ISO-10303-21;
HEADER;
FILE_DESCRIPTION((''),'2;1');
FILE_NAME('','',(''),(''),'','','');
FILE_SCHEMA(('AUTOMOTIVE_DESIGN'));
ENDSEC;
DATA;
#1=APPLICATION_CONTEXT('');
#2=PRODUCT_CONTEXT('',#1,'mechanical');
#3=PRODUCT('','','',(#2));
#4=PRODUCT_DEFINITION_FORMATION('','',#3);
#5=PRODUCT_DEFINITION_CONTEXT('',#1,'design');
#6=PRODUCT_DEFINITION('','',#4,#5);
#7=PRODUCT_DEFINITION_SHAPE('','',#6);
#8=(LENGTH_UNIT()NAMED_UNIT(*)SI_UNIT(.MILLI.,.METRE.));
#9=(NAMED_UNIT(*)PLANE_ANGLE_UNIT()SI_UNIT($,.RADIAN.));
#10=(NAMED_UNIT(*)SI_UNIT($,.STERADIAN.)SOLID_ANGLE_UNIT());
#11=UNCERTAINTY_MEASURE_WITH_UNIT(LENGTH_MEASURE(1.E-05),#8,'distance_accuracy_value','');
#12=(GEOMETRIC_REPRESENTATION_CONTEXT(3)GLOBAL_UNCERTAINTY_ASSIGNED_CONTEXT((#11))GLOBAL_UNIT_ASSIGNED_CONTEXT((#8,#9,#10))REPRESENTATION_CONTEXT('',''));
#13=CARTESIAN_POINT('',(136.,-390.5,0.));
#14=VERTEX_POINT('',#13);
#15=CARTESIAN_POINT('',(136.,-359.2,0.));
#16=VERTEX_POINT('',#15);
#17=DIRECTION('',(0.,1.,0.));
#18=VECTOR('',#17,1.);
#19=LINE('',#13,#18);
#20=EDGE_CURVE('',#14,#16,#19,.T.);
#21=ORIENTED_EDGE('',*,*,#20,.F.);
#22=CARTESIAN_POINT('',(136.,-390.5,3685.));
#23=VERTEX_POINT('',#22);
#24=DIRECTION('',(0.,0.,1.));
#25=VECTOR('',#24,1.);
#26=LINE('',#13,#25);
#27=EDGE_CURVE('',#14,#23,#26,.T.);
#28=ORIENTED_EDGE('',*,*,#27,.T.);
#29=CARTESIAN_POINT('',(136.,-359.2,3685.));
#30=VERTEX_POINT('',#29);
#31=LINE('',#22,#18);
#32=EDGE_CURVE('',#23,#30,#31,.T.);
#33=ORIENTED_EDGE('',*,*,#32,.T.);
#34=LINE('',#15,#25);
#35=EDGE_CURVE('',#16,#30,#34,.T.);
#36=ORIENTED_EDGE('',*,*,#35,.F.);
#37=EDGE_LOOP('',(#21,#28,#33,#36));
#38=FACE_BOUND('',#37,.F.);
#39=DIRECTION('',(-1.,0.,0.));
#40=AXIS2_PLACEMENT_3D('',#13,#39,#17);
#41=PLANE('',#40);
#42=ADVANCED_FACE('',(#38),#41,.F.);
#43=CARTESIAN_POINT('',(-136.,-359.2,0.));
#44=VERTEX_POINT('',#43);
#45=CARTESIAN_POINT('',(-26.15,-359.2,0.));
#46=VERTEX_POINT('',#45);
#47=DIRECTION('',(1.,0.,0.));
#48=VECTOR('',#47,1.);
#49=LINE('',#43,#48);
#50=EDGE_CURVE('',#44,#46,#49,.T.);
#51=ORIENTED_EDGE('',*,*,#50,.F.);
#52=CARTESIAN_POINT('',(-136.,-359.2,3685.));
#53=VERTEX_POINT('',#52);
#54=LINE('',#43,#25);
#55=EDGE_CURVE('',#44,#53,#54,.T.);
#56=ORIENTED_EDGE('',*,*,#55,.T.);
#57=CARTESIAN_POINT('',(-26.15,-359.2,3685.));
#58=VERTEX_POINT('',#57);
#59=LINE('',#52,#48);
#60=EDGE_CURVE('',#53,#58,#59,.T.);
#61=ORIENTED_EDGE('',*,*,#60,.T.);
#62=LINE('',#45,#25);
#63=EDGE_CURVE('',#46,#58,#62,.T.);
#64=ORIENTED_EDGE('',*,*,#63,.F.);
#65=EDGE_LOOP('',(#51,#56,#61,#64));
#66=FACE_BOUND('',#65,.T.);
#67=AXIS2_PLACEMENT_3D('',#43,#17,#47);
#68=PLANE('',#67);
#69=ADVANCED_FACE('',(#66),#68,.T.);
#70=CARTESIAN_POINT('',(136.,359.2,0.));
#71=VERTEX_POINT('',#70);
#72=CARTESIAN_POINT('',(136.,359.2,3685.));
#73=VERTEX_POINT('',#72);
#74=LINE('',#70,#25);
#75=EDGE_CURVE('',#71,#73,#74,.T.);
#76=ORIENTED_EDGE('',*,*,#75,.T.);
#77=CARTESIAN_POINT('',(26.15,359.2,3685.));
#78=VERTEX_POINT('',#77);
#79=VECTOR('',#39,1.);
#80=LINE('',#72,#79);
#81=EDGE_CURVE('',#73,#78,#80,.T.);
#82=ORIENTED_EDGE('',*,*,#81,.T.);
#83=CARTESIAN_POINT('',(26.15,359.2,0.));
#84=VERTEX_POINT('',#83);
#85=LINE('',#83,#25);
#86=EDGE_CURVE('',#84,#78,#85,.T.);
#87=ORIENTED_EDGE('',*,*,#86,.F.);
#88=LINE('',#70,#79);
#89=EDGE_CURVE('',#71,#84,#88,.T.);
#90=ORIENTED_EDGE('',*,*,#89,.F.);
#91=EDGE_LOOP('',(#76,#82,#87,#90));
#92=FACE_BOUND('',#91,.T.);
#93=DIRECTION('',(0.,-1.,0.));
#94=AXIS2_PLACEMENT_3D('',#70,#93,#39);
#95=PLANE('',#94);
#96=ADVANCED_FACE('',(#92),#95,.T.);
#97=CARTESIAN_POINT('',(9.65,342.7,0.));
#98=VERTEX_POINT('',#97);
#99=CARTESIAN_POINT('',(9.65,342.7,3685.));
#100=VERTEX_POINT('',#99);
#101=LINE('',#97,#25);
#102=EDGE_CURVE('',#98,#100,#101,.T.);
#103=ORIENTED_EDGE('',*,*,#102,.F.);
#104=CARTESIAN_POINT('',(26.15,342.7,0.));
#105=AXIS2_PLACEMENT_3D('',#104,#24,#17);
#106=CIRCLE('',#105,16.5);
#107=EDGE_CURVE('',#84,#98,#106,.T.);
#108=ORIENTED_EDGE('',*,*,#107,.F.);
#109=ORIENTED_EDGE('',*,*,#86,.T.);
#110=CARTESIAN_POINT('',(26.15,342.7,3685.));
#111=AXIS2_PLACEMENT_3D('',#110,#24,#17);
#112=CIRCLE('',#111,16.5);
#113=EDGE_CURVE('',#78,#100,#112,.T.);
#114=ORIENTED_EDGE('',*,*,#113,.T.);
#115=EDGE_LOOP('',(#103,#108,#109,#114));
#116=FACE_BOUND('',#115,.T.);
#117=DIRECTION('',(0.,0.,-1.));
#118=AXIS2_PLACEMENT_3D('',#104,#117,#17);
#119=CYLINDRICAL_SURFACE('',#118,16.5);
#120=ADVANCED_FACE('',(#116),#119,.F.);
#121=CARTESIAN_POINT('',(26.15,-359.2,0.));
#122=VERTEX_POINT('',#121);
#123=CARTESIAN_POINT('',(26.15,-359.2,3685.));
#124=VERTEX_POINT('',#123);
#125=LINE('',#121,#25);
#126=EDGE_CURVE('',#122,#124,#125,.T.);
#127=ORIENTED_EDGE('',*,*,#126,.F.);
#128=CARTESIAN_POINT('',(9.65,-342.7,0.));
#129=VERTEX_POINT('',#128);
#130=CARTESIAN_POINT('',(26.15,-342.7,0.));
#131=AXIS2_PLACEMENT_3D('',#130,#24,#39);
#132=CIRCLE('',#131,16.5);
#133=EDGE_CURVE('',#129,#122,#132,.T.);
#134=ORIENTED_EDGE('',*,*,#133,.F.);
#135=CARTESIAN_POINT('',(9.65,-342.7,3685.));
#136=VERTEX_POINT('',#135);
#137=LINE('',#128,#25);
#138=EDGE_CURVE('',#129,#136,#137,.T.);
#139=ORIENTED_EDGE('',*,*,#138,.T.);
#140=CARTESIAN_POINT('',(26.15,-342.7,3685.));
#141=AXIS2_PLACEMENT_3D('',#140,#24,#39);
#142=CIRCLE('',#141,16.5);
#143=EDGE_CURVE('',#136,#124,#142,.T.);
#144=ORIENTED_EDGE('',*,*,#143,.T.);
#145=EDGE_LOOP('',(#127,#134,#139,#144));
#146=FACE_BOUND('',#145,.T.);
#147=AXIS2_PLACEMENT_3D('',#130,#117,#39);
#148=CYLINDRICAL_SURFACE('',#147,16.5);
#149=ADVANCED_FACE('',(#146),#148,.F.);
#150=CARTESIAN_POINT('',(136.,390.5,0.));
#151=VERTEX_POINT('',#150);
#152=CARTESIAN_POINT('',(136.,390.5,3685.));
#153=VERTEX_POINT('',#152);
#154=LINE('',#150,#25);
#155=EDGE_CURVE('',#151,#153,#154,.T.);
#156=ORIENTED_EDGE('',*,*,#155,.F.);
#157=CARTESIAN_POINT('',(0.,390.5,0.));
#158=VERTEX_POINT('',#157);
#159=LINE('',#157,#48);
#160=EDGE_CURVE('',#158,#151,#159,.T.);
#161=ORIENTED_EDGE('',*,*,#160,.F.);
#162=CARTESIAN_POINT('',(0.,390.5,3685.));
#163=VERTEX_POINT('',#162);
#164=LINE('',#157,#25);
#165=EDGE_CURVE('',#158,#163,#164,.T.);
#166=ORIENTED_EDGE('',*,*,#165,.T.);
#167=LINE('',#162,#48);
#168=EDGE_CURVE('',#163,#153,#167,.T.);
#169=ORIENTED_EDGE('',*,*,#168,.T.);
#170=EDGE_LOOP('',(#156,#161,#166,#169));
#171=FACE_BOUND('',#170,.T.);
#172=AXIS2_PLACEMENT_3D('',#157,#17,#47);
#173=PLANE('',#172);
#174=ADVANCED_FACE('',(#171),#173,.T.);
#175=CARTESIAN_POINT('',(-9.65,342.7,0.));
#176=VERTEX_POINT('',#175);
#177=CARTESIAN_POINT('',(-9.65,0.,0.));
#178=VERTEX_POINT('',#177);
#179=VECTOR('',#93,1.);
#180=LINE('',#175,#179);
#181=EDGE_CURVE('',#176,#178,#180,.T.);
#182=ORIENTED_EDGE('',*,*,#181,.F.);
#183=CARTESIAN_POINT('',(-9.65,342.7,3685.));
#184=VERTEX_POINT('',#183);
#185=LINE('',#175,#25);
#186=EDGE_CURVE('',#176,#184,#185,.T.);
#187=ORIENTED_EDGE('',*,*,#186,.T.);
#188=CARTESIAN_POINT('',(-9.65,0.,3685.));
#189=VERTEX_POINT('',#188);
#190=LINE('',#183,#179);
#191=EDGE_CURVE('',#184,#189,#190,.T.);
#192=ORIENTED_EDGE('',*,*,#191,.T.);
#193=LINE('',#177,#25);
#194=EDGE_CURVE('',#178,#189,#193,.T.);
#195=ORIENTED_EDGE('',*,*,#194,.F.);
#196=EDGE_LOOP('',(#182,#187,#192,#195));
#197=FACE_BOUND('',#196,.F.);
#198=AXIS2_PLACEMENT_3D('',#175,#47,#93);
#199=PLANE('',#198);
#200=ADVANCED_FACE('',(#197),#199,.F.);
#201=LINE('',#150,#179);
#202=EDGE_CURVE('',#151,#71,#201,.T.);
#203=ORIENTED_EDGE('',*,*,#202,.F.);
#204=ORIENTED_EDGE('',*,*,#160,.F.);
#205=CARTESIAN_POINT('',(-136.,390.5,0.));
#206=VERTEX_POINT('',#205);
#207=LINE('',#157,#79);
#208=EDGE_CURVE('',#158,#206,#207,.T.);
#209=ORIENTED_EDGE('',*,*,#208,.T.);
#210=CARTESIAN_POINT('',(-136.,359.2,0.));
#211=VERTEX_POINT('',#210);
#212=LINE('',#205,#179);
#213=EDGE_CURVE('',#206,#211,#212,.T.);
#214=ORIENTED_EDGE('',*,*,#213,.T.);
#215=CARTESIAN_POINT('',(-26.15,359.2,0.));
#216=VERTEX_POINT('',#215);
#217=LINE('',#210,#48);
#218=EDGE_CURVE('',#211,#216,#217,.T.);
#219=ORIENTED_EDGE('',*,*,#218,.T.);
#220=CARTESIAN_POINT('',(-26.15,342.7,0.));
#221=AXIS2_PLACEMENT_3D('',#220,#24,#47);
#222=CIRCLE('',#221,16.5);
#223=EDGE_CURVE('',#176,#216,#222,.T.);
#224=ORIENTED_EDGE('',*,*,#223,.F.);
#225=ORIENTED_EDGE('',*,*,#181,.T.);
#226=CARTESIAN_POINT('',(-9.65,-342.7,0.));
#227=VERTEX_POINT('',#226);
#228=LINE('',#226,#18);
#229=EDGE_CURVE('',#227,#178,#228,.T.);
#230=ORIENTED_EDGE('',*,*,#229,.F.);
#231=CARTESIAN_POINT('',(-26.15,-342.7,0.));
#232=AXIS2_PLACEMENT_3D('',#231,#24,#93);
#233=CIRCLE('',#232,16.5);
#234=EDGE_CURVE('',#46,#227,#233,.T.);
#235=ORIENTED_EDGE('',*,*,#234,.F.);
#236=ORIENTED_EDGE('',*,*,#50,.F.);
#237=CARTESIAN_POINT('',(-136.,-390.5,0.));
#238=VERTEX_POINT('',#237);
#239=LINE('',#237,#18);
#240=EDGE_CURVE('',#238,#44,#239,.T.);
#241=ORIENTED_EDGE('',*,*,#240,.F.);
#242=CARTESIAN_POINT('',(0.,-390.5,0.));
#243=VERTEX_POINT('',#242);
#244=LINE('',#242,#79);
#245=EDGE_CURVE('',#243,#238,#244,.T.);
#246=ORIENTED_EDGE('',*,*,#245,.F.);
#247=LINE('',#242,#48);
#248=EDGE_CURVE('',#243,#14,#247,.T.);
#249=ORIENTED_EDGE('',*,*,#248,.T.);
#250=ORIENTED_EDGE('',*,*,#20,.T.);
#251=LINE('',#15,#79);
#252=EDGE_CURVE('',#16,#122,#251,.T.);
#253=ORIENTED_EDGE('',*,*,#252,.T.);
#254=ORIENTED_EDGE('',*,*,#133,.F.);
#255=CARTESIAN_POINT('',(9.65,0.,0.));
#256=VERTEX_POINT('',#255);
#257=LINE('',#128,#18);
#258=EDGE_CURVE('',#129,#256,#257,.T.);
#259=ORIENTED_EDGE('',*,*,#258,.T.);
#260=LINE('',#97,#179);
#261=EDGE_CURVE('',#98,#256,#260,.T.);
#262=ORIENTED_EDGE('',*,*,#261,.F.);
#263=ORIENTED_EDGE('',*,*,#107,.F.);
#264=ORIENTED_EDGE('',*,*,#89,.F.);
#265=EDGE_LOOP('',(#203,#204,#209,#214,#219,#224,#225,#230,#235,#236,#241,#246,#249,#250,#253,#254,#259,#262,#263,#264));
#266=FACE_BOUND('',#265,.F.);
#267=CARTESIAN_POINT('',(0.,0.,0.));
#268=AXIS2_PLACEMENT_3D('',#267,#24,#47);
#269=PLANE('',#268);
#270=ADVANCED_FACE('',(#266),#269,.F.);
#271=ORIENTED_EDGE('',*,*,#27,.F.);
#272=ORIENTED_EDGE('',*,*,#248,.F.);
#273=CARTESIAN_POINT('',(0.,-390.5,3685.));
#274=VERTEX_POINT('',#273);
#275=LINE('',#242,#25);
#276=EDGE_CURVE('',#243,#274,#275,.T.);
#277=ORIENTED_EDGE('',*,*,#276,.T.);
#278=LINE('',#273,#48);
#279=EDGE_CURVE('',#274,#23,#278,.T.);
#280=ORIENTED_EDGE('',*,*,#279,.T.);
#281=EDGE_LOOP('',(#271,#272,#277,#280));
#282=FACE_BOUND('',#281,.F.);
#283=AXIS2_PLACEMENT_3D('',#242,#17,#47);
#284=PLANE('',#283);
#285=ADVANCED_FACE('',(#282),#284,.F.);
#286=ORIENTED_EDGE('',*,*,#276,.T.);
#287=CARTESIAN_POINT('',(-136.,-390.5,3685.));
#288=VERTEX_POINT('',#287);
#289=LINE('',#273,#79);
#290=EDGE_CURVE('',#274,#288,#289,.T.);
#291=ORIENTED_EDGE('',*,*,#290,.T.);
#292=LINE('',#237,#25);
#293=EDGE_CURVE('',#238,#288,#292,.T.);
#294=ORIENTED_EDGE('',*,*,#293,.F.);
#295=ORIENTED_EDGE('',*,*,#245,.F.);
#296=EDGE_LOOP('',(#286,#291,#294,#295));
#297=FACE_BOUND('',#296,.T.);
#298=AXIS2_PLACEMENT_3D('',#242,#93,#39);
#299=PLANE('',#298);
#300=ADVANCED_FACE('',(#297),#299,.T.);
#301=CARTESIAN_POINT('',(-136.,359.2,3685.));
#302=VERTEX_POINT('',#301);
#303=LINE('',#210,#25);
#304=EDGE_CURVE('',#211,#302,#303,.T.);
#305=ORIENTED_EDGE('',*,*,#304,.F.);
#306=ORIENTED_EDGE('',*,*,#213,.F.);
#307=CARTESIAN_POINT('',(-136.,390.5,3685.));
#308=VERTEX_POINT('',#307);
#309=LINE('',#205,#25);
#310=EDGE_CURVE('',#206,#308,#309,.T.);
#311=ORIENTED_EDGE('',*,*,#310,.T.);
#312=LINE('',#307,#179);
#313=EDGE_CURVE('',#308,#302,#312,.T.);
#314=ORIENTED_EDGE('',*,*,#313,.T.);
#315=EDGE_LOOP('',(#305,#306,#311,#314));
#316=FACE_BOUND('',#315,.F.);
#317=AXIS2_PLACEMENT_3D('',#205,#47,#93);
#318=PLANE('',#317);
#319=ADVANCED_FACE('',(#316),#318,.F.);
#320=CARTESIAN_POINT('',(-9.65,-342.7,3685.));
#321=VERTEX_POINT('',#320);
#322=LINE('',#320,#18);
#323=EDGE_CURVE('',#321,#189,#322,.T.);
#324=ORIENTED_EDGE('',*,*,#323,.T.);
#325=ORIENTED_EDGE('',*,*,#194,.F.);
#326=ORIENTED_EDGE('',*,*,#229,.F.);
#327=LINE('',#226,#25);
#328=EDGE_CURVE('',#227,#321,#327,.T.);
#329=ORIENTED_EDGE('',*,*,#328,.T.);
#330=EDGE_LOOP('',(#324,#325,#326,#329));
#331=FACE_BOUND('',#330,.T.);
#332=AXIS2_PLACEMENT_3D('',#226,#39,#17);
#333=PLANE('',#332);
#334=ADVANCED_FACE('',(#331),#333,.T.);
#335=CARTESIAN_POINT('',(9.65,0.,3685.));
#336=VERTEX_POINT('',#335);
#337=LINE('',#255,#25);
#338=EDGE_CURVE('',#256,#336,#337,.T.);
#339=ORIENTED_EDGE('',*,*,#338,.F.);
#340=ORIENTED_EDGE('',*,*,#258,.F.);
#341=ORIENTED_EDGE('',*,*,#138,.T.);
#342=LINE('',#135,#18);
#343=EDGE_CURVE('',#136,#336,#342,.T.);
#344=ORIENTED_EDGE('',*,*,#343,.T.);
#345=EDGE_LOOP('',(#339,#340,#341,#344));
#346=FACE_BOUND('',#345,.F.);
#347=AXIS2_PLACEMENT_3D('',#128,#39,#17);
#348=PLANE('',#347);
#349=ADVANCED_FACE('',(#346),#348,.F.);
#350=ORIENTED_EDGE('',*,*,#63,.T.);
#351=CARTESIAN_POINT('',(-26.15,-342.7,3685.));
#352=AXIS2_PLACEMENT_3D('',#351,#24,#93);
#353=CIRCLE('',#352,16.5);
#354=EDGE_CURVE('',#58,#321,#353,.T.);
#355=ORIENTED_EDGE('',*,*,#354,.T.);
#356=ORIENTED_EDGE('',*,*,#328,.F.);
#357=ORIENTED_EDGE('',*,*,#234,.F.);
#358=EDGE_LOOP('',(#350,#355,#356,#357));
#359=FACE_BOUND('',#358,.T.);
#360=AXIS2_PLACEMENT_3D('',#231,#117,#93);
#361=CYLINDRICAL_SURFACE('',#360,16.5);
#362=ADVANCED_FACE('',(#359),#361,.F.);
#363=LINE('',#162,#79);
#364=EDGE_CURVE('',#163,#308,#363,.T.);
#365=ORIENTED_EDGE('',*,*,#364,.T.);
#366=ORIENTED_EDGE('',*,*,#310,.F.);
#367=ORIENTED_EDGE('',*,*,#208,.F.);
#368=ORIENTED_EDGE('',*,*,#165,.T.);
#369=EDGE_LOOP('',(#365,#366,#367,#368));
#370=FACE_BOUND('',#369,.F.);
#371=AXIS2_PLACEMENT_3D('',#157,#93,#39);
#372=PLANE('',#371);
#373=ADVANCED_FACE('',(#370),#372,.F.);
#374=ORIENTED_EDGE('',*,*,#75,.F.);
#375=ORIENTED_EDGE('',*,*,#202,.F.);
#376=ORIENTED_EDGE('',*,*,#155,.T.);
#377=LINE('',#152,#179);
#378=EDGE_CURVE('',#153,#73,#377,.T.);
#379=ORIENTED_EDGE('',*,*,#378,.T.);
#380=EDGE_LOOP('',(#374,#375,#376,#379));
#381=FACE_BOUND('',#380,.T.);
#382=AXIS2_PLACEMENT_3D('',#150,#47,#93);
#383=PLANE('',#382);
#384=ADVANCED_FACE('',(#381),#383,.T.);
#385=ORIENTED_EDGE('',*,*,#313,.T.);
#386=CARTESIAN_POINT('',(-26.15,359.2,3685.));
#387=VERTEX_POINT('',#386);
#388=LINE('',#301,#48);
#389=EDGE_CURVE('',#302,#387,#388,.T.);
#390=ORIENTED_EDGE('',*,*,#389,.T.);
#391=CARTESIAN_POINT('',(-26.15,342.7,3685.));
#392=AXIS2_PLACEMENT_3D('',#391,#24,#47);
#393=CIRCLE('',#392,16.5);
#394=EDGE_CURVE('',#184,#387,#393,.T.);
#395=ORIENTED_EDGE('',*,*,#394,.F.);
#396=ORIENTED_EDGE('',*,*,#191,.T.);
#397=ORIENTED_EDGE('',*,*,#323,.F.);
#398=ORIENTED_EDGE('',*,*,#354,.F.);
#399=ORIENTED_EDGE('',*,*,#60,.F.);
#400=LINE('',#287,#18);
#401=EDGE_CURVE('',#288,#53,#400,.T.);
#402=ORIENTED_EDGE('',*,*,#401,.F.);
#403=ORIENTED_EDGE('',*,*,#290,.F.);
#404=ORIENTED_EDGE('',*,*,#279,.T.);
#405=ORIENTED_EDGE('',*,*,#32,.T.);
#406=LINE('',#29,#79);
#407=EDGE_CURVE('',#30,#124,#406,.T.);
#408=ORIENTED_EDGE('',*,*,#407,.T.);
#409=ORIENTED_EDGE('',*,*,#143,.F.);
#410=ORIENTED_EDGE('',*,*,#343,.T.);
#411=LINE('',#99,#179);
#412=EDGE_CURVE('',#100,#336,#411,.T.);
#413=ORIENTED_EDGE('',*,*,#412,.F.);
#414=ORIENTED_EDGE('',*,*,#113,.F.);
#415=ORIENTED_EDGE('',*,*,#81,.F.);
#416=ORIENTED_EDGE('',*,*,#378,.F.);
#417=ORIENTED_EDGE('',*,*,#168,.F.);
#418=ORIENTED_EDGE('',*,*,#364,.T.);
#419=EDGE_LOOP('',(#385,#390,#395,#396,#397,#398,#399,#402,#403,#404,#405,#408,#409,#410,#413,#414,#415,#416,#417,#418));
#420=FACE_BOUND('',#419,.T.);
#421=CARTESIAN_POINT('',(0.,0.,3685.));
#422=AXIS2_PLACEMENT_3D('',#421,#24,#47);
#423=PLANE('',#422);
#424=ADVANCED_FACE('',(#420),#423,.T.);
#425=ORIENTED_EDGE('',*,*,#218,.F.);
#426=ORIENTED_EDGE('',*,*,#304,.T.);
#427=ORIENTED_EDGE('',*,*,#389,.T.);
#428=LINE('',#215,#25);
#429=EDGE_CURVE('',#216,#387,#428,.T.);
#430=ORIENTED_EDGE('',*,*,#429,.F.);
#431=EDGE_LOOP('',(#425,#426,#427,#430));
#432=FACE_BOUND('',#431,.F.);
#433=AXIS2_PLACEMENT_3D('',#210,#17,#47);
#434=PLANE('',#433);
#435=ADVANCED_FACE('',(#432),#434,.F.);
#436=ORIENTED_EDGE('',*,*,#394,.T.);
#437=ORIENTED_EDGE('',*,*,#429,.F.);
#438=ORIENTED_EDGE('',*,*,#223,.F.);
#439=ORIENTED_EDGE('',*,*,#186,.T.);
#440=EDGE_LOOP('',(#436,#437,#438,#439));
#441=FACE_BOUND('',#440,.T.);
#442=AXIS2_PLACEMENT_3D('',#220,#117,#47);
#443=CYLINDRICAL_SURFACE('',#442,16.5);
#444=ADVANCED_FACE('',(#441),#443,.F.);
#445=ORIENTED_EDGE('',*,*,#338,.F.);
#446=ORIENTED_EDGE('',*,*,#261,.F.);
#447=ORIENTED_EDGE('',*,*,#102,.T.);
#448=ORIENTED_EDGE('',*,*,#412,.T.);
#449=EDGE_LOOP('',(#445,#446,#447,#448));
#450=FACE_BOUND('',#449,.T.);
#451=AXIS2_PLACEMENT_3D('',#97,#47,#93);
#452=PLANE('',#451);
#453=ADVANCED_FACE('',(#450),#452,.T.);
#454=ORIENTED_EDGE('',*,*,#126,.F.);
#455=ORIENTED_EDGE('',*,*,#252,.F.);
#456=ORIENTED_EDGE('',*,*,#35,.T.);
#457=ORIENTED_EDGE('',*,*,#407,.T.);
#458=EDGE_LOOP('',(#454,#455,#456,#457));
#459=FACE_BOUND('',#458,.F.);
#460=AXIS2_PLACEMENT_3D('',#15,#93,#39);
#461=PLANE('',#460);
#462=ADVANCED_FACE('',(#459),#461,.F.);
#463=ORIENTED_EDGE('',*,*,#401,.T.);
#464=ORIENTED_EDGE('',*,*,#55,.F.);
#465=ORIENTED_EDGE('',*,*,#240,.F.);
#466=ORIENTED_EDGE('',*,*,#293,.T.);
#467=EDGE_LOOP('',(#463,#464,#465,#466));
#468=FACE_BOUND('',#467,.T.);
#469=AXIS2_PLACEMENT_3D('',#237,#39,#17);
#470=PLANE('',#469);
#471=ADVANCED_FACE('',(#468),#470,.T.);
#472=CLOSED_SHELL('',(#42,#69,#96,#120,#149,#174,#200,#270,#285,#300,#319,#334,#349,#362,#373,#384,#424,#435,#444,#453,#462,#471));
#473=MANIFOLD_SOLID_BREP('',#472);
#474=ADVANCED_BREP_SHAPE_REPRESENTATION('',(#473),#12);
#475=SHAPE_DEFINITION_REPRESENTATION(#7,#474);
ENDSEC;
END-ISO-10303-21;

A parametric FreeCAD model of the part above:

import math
import FreeCAD as App
import Part
import Sketcher
from FreeCAD import Vector
Q = App.Units.Quantity

doc = App.newDocument("Part")
body = doc.addObject("PartDesign::Body", "Body")

# Sketch on XY plane
sketch1 = body.newObject("Sketcher::SketchObject", "Sketch")
sketch1.AttachmentSupport = (doc.getObject("XY_Plane"), [""])
sketch1.MapMode = "FlatFace"
sketch1.addGeometry([
    Part.LineSegment(Vector(-136, -359, 0), Vector(-136, -390, 0)),  # 0
    Part.LineSegment(Vector(-136, -390, 0), Vector(136, -390, 0)),  # 1
    Part.LineSegment(Vector(136, -390, 0), Vector(136, -359, 0)),  # 2
    Part.LineSegment(Vector(136, -359, 0), Vector(26, -359, 0)),  # 3
    Part.ArcOfCircle(Part.Circle(Vector(26, -343, 0), Vector(0, 0, 1), 16), math.radians(180), math.radians(270)),  # 4
    Part.LineSegment(Vector(10, -343, 0), Vector(10, 343, 0)),  # 5
    Part.ArcOfCircle(Part.Circle(Vector(26, 343, 0), Vector(0, 0, 1), 16), math.radians(90), math.radians(180)),  # 6
    Part.LineSegment(Vector(26, 359, 0), Vector(136, 359, 0)),  # 7
    Part.LineSegment(Vector(136, 359, 0), Vector(136, 390, 0)),  # 8
    Part.LineSegment(Vector(136, 390, 0), Vector(-136, 390, 0)),  # 9
    Part.LineSegment(Vector(-136, 390, 0), Vector(-136, 359, 0)),  # 10
    Part.LineSegment(Vector(-136, 359, 0), Vector(-26, 359, 0)),  # 11
    Part.ArcOfCircle(Part.Circle(Vector(-26, 343, 0), Vector(0, 0, 1), 16), math.radians(0), math.radians(90)),  # 12
    Part.LineSegment(Vector(-10, 343, 0), Vector(-10, -343, 0)),  # 13
    Part.ArcOfCircle(Part.Circle(Vector(-26, -343, 0), Vector(0, 0, 1), 16), math.radians(-90), math.radians(0)),  # 14
    Part.LineSegment(Vector(-26, -359, 0), Vector(-136, -359, 0)),  # 15
], False)
sketch1.addConstraint([
    Sketcher.Constraint("Coincident", 0, 2, 1, 1),
    Sketcher.Constraint("Coincident", 1, 2, 2, 1),
    Sketcher.Constraint("Coincident", 2, 2, 3, 1),
    Sketcher.Constraint("Tangent", 3, 2, 4, 2),
    Sketcher.Constraint("Tangent", 4, 1, 5, 1),
    Sketcher.Constraint("Tangent", 5, 2, 6, 2),
    Sketcher.Constraint("Tangent", 6, 1, 7, 1),
    Sketcher.Constraint("Coincident", 7, 2, 8, 1),
    Sketcher.Constraint("Coincident", 8, 2, 9, 1),
    Sketcher.Constraint("Coincident", 9, 2, 10, 1),
    Sketcher.Constraint("Coincident", 10, 2, 11, 1),
    Sketcher.Constraint("Tangent", 11, 2, 12, 2),
    Sketcher.Constraint("Tangent", 12, 1, 13, 1),
    Sketcher.Constraint("Tangent", 13, 2, 14, 2),
    Sketcher.Constraint("Tangent", 14, 1, 15, 1),
    Sketcher.Constraint("Coincident", 15, 2, 0, 1),
    Sketcher.Constraint("Vertical", 0),
    Sketcher.Constraint("Horizontal", 1),
    Sketcher.Constraint("Vertical", 2),
    Sketcher.Constraint("Horizontal", 3),
    Sketcher.Constraint("Vertical", 5),
    Sketcher.Constraint("Horizontal", 7),
    Sketcher.Constraint("Vertical", 8),
    Sketcher.Constraint("Horizontal", 9),
    Sketcher.Constraint("Vertical", 10),
    Sketcher.Constraint("Horizontal", 11),
    Sketcher.Constraint("Vertical", 13),
    Sketcher.Constraint("Horizontal", 15),
    Sketcher.Constraint("Equal", 4, 6),
    Sketcher.Constraint("Equal", 6, 12),
    Sketcher.Constraint("Equal", 12, 14),
    Sketcher.Constraint("Symmetric", 4, 3, 12, 3, -1, 1),
    Sketcher.Constraint("Symmetric", 0, 2, 8, 2, -1, 1),
    Sketcher.Constraint("Symmetric", 7, 2, 10, 2, -2),
    Sketcher.Constraint("Symmetric", 2, 2, 15, 2, -2),
    Sketcher.Constraint("Radius", 4, Q("16.5 mm")),
    Sketcher.Constraint("DistanceY", 0, 2, 0, 1, Q("31.3 mm")),
    Sketcher.Constraint("DistanceX", 0, 2, -1, 1, Q("136 mm")),
    Sketcher.Constraint("DistanceY", 0, 2, -1, 1, Q("390.5 mm")),
    Sketcher.Constraint("DistanceX", -1, 1, 4, 1, Q("9.65 mm")),
])
pad1 = body.newObject("PartDesign::Pad", "Pad")
pad1.Profile = sketch1
pad1.Length = 3685

doc.recompute()
